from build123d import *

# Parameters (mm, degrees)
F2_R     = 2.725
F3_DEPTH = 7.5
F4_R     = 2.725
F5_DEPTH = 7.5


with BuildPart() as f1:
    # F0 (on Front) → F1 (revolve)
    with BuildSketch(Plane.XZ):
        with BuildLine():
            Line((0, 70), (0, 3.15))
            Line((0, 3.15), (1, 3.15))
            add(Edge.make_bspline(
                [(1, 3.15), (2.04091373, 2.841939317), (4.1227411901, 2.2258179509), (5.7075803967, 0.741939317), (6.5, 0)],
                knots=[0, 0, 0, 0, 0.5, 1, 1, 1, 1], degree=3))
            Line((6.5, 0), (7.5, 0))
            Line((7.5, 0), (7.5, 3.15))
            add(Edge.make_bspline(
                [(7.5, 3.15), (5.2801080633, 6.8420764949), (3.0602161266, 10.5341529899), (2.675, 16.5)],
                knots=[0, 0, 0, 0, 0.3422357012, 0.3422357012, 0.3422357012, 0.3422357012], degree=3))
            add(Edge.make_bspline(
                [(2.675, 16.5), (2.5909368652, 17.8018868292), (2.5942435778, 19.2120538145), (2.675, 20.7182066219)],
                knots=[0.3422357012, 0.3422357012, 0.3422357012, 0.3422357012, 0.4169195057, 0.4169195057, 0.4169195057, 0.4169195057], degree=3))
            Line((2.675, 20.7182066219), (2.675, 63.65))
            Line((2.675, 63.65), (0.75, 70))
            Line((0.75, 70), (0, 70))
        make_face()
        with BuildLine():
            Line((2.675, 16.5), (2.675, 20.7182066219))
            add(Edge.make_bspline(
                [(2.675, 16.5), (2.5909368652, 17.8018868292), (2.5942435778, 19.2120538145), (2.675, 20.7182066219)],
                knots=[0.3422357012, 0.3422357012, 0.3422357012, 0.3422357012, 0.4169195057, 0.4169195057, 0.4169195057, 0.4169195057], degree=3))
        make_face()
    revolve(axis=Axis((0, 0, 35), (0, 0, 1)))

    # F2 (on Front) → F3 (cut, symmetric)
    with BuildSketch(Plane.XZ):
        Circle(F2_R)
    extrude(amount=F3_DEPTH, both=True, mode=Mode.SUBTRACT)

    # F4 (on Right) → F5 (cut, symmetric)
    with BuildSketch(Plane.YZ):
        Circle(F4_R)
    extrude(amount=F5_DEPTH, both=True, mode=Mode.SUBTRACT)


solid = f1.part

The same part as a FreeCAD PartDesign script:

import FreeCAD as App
import Part
import Sketcher
Q = App.Units.Quantity

doc = App.newDocument("Part")
body = doc.addObject("PartDesign::Body", "Body")

# Sketch on XZ plane
sketch1 = doc.addObject("Sketcher::SketchObject", "Sketch")
body.addObject(sketch1)
sketch1.AttachmentSupport = (doc.XZ_Plane, [""])
sketch1.MapMode = "FlatFace"
sketch1.addGeometry([
    Part.LineSegment(App.Vector(0, 70, 0), App.Vector(0, 3.15, 0)),  # 0
    Part.LineSegment(App.Vector(0, 3.15, 0), App.Vector(1, 3.15, 0)),  # 1
    Part.BSplineCurve([App.Vector(1, 3.15, 0), App.Vector(2.040914, 2.841939, 0), App.Vector(4.122741, 2.225818, 0), App.Vector(5.70758, 0.741939, 0), App.Vector(6.5, 0, 0)], [4, 1, 4], [0, 0.5, 1], False, 3, [1, 1, 1, 1, 1], False),  # 2
    Part.LineSegment(App.Vector(6.5, 0, 0), App.Vector(7.5, 0, 0)),  # 3
    Part.LineSegment(App.Vector(7.5, 0, 0), App.Vector(7.5, 3.15, 0)),  # 4
    Part.BSplineCurve([App.Vector(7.5, 3.15, 0), App.Vector(5.280108, 6.842076, 0), App.Vector(3.060216, 10.534153, 0), App.Vector(2.675, 16.5, 0)], [4, 4], [0, 0.342235701], False, 3, [1, 1, 1, 1], False),  # 5
    Part.LineSegment(App.Vector(2.675, 16.5, 0), App.Vector(2.675, 63.65, 0)),  # 6
    Part.LineSegment(App.Vector(2.675, 63.65, 0), App.Vector(0.75, 70, 0)),  # 7
    Part.LineSegment(App.Vector(0.75, 70, 0), App.Vector(0, 70, 0)),  # 8
], False)
sketch1.addConstraint([
    Sketcher.Constraint("Block", 2),
    Sketcher.Constraint("Block", 5),
    Sketcher.Constraint("Coincident", 0, 2, 1, 1),
    Sketcher.Constraint("Coincident", 1, 2, 2, 1),
    Sketcher.Constraint("Coincident", 2, 2, 3, 1),
    Sketcher.Constraint("Coincident", 3, 2, 4, 1),
    Sketcher.Constraint("Coincident", 4, 2, 5, 1),
    Sketcher.Constraint("Coincident", 5, 2, 6, 1),
    Sketcher.Constraint("Coincident", 6, 2, 7, 1),
    Sketcher.Constraint("Coincident", 7, 2, 8, 1),
    Sketcher.Constraint("Coincident", 8, 2, 0, 1),
    Sketcher.Constraint("Vertical", 0),
    Sketcher.Constraint("Horizontal", 1),
    Sketcher.Constraint("Horizontal", 3),
    Sketcher.Constraint("Vertical", 4),
    Sketcher.Constraint("Vertical", 6),
    Sketcher.Constraint("Horizontal", 8),
    Sketcher.Constraint("PointOnObject", 0, 2, -2),
    Sketcher.Constraint("DistanceY", -1, 1, 7, 2, Q("70 mm")),
    Sketcher.Constraint("DistanceX", 8, 2, 8, 1, Q("0.75 mm")),
    Sketcher.Constraint("DistanceY", 6, 1, 6, 2, Q("47.15 mm")),
])
revolution = doc.addObject("PartDesign::Revolution", "Revolution")
body.addObject(revolution)
revolution.Profile = sketch1
revolution.ReferenceAxis = (sketch1, ["V_Axis"])
revolution.Angle = 360

# Sketch on XZ plane
sketch2 = doc.addObject("Sketcher::SketchObject", "Sketch001")
body.addObject(sketch2)
sketch2.AttachmentSupport = (doc.XZ_Plane, [""])
sketch2.MapMode = "FlatFace"
sketch2.addGeometry(Part.Circle(App.Vector(0, 0, 0), App.Vector(0, 0, 1), 2.7), False)
sketch2.addConstraint([
    Sketcher.Constraint("Coincident", 0, 3, -1, 1),
    Sketcher.Constraint("Diameter", 0, Q("5.45 mm")),
])
pocket1 = doc.addObject("PartDesign::Pocket", "Pocket")
body.addObject(pocket1)
pocket1.Profile = sketch2
pocket1.Length = 15
pocket1.Midplane = True

# Sketch on YZ plane
sketch3 = doc.addObject("Sketcher::SketchObject", "Sketch002")
body.addObject(sketch3)
sketch3.AttachmentSupport = (doc.YZ_Plane, [""])
sketch3.MapMode = "FlatFace"
sketch3.addGeometry(Part.Circle(App.Vector(0, 0, 0), App.Vector(0, 0, 1), 2.7), False)
sketch3.addConstraint([
    Sketcher.Constraint("Coincident", 0, 3, -1, 1),
    Sketcher.Constraint("Diameter", 0, Q("5.45 mm")),
])
pocket2 = doc.addObject("PartDesign::Pocket", "Pocket001")
body.addObject(pocket2)
pocket2.Profile = sketch3
pocket2.Length = 15
pocket2.Midplane = True

doc.recompute()
